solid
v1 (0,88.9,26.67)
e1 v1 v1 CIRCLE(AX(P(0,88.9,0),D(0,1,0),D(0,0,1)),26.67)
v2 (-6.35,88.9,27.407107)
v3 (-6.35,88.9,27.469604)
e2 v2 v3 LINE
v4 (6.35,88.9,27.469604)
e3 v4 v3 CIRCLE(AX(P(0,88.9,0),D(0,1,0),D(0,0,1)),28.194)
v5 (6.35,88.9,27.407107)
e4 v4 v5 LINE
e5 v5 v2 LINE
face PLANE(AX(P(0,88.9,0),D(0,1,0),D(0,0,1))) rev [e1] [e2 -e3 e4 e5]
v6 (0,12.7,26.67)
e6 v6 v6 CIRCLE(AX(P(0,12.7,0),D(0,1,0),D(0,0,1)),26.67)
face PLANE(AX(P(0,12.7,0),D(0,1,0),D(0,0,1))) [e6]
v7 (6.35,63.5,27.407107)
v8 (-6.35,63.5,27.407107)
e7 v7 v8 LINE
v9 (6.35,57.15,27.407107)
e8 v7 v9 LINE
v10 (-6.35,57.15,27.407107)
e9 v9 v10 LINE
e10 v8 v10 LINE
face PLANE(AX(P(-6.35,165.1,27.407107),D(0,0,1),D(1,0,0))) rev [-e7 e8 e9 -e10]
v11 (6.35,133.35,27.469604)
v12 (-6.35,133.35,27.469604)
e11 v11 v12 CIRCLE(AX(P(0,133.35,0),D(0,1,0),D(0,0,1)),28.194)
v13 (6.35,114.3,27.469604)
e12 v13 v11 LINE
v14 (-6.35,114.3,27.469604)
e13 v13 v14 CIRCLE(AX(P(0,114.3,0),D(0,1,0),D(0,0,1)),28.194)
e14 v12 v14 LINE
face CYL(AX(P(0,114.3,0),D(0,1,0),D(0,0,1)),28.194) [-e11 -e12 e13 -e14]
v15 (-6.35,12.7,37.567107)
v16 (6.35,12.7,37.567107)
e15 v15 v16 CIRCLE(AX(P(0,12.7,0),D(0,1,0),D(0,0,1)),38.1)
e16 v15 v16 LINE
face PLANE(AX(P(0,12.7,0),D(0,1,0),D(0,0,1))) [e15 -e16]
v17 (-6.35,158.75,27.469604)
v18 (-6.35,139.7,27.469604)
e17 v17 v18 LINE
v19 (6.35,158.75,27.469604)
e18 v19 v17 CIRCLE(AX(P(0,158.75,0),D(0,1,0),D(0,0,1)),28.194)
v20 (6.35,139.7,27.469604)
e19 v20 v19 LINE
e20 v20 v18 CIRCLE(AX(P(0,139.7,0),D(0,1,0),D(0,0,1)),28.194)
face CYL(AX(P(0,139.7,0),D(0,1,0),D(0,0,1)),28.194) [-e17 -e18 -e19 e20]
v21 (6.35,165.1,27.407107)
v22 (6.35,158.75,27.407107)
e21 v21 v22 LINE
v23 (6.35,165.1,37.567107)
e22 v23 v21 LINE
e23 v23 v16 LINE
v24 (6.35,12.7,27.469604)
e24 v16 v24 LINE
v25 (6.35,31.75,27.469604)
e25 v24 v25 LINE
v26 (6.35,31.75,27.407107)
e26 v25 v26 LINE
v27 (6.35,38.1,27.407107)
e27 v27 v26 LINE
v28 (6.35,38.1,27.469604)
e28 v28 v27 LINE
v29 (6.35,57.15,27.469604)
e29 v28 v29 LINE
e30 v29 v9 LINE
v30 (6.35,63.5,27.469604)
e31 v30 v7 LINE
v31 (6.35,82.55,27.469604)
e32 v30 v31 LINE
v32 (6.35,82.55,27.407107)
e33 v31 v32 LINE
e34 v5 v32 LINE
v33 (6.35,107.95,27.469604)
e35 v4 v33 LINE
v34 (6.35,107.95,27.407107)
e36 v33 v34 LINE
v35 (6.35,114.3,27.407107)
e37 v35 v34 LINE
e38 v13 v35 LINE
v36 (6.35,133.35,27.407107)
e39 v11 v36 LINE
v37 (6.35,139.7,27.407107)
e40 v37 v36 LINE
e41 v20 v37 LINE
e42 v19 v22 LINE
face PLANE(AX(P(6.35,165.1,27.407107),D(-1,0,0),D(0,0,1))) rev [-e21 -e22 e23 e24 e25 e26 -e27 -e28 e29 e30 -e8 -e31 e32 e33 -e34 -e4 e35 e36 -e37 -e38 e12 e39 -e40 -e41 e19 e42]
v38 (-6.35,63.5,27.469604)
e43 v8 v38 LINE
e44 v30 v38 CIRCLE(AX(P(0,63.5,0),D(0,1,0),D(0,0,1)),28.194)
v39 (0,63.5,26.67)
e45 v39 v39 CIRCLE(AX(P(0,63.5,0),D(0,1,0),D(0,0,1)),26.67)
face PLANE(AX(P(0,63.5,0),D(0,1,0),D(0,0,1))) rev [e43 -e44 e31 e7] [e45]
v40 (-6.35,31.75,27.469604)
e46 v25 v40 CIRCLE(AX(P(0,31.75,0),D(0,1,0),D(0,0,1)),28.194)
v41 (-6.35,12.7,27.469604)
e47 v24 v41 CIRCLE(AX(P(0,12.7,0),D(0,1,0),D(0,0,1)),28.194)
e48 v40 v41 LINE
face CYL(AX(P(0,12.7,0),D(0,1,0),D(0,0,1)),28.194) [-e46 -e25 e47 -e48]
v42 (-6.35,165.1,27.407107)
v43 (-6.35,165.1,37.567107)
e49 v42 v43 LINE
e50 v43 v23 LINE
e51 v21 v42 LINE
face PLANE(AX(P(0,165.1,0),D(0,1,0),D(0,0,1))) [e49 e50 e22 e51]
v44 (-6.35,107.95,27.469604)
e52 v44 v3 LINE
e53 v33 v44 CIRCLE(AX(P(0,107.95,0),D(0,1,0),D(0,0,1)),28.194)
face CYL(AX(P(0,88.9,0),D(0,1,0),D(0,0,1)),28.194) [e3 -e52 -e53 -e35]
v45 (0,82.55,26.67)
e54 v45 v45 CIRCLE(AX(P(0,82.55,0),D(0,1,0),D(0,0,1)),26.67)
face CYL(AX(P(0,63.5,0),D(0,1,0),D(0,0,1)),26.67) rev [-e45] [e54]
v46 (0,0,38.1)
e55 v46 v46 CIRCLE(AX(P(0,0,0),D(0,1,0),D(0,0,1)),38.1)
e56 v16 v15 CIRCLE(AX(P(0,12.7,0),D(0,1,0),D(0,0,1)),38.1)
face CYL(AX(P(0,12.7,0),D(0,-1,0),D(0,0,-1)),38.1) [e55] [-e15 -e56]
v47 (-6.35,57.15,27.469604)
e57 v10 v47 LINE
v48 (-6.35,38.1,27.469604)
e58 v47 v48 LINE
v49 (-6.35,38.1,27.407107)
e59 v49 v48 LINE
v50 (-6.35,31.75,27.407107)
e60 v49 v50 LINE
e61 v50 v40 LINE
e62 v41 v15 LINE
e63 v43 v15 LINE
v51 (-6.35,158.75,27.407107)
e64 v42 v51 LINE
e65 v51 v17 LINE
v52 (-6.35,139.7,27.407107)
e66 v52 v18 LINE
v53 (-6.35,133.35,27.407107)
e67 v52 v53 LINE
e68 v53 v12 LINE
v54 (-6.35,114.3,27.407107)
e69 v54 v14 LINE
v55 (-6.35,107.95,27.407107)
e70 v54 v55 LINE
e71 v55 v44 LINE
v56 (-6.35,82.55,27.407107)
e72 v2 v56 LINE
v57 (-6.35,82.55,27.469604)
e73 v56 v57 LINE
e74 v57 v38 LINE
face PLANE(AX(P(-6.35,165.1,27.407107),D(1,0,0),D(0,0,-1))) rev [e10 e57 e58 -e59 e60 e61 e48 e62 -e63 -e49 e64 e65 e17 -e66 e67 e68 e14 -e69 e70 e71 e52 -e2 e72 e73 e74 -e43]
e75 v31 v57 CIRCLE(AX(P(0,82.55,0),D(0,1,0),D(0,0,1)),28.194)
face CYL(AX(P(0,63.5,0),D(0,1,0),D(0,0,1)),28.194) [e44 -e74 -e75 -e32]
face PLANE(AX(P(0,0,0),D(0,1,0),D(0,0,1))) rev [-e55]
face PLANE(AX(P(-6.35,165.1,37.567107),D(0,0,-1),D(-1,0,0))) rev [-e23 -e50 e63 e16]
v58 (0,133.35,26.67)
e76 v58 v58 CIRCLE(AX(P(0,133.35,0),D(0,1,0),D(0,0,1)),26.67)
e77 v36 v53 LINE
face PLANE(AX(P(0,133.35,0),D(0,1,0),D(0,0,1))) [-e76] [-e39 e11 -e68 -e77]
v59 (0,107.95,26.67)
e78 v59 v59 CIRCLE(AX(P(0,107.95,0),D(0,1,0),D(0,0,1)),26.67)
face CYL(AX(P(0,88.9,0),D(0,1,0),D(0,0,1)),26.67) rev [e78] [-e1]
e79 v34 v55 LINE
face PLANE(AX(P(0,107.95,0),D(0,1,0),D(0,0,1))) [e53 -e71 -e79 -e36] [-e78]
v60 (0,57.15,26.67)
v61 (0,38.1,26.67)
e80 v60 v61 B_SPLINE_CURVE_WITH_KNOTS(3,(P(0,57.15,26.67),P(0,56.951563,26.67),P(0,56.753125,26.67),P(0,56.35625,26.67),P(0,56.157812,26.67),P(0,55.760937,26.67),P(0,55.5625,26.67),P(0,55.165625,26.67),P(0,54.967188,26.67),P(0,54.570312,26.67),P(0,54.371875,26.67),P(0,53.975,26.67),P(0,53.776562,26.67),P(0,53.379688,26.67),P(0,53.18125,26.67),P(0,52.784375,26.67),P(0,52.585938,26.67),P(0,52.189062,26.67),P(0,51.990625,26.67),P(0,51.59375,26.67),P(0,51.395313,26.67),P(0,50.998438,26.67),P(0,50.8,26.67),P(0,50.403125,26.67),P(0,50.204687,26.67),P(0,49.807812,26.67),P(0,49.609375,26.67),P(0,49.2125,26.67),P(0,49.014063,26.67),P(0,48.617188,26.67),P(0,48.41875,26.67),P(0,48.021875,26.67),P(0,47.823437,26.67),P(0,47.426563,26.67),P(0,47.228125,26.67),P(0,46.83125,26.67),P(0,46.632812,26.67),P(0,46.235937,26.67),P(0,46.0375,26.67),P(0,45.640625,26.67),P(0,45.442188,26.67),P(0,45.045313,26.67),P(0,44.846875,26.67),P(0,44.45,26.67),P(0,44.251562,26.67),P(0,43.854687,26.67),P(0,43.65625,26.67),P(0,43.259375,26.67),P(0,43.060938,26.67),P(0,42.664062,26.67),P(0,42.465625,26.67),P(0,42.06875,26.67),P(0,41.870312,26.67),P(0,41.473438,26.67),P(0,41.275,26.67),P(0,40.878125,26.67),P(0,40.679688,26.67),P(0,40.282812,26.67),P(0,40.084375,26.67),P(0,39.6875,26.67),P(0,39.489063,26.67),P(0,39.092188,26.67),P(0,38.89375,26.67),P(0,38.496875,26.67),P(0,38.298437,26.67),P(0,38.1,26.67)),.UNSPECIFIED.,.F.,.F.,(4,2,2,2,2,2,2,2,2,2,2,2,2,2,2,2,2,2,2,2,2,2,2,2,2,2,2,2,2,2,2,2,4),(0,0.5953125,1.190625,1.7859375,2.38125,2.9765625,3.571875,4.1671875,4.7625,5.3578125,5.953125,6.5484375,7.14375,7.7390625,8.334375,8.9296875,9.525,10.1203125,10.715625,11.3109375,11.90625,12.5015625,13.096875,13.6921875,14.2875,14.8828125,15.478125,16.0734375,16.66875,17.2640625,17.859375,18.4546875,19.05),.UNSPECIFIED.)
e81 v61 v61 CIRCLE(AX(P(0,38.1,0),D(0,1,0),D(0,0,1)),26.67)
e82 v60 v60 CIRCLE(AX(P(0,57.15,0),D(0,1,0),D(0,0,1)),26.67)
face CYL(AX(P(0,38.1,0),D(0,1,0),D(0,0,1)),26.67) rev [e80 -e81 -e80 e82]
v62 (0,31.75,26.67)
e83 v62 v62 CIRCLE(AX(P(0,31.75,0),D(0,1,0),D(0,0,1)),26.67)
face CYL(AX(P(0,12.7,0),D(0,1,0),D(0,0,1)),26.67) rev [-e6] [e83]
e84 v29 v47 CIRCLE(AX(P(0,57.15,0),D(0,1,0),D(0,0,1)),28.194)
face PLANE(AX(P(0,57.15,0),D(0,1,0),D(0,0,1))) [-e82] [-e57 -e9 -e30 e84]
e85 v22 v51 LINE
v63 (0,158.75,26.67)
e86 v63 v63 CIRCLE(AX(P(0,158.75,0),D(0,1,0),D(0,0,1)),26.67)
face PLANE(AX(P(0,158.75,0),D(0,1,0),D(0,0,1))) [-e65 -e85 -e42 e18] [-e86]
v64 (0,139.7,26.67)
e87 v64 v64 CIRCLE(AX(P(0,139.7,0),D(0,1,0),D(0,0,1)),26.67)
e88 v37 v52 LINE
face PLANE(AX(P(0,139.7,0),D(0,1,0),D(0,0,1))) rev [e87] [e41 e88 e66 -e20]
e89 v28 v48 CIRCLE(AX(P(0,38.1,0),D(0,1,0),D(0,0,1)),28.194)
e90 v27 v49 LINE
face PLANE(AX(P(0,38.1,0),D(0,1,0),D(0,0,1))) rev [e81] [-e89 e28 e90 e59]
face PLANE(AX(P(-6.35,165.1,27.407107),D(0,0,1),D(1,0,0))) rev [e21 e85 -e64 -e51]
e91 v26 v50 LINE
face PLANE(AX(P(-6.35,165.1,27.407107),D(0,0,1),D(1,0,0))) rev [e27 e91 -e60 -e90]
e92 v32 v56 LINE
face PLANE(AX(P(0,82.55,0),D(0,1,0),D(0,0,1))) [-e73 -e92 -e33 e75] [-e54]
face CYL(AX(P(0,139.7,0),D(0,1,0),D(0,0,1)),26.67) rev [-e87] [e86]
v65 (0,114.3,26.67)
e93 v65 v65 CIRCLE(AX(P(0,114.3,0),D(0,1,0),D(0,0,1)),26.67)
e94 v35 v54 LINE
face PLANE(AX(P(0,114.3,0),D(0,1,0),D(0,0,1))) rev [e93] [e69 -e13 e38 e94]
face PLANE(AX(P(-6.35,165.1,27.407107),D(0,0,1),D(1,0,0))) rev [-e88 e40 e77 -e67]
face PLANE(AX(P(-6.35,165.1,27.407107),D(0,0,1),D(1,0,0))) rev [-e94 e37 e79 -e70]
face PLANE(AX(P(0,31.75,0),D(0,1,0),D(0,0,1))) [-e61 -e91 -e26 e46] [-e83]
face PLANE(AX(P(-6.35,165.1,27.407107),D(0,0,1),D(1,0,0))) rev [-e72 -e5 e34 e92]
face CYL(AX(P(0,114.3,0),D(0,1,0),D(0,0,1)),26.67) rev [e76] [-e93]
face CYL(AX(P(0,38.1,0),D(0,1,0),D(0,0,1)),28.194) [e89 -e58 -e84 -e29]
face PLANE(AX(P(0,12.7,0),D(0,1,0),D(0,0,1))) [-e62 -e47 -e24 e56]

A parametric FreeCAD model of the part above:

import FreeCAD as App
import Part
import Sketcher

V = App.Vector
Q = App.Units.Quantity


def add_polygon(sketch, points):
    """Adds a closed chain of lines whose ends are joined by coincident constraints."""
    first, n = sketch.GeometryCount, len(points)
    for a, b in zip(points, points[1:] + points[:1]):
        sketch.addGeometry(Part.LineSegment(App.Vector(*a, 0), App.Vector(*b, 0)), False)
    for i in range(n):
        sketch.addConstraint(Sketcher.Constraint("Coincident", first + i, 2, first + (i + 1) % n, 1))

doc = App.newDocument("Part")
params = doc.addObject("Spreadsheet::Sheet", "Params")
for row, (alias, value) in enumerate([
    ("sketch1_diameter", "3 in"),
    ("pad1_length", "0.5 in"),
    ("sketch2_width", "0.5 in"),
    ("sketch2_height", "0.4 in"),
    ("pad2_length", "6 in"),
    ("sketch3_diameter", "2.1 in"),
    ("sketch3_diameter2", "2.22 in"),
    ("sketch4_height", "0.75 in"),
    ("linearpattern_pitch", "1 in"),
], start=1):
    params.set(f"A{row}", alias)
    params.set(f"B{row}", "=" + value)
    params.setAlias(f"B{row}", alias)

body = doc.addObject("PartDesign::Body", "Body")

# Sketch on XZ plane
sketch1 = body.newObject("Sketcher::SketchObject", "Sketch")
sketch1.AttachmentSupport = (doc.getObject("XZ_Plane"), [""])
sketch1.MapMode = "FlatFace"
sketch1.addGeometry(Part.Circle(V(0, 0, 0), V(0, 0, 1), 38), False)
sketch1.addConstraint([
    Sketcher.Constraint("Coincident", 0, 3, -1, 1),
    Sketcher.Constraint("Diameter", 0, Q("3 in")),
])
sketch1.setExpression("Constraints[1]", "Params.sketch1_diameter")
pad1 = body.newObject("PartDesign::Pad", "Pad")
pad1.Profile = sketch1
pad1.setExpression("Length", "Params.pad1_length")
pad1.Reversed = True

# Sketch on XZ plane
sketch2 = body.newObject("Sketcher::SketchObject", "Sketch001")
sketch2.AttachmentSupport = (doc.getObject("XZ_Plane"), [""])
sketch2.MapMode = "FlatFace"
sketch2.AttachmentOffset = App.Placement(V(0, 0, -0.5 * 25.4), App.Rotation())
add_polygon(sketch2, [(-6, 27), (-6, 38), (6, 38), (6, 27)])  # lines 0-3
sketch2.addConstraint([
    Sketcher.Constraint("Vertical", 0),
    Sketcher.Constraint("Horizontal", 1),
    Sketcher.Constraint("Vertical", 2),
    Sketcher.Constraint("Horizontal", 3),
    Sketcher.Constraint("DistanceX", 1, 1, 1, 2, Q("0.5 in")),
    Sketcher.Constraint("DistanceY", 0, 1, 0, 2, Q("0.4 in")),
    Sketcher.Constraint("DistanceX", 0, 2, -1, 1, Q("0.25 in")),
    Sketcher.Constraint("DistanceY", -1, 1, 0, 2, Q("37.567107 mm")),
])
sketch2.setExpression("Constraints[8]", "Params.sketch2_width")
sketch2.setExpression("Constraints[9]", "Params.sketch2_height")
pad2 = body.newObject("PartDesign::Pad", "Pad001")
pad2.Profile = sketch2
pad2.setExpression("Length", "Params.pad2_length")
pad2.Reversed = True

# Sketch on XZ plane
sketch3 = body.newObject("Sketcher::SketchObject", "Sketch002")
sketch3.AttachmentSupport = (doc.getObject("XZ_Plane"), [""])
sketch3.MapMode = "FlatFace"
sketch3.AttachmentOffset = App.Placement(V(0, 0, -0.5 * 25.4), App.Rotation())
sketch3.addGeometry([
    Part.Circle(V(0, 0, 0), V(0, 0, 1), 28),
    Part.Circle(V(0, 0, 0), V(0, 0, 1), 27),
], False)
sketch3.addConstraint([
    Sketcher.Constraint("Coincident", 0, 3, -1, 1),
    Sketcher.Constraint("Coincident", 1, 3, -1, 1),
    Sketcher.Constraint("Diameter", 1, Q("2.1 in")),
    Sketcher.Constraint("Diameter", 0, Q("2.22 in")),
])
sketch3.setExpression("Constraints[2]", "Params.sketch3_diameter")
sketch3.setExpression("Constraints[3]", "Params.sketch3_diameter2")

# Sketch on XY plane
sketch4 = body.newObject("Sketcher::SketchObject", "Sketch003")
sketch4.AttachmentSupport = (doc.getObject("XY_Plane"), [""])
sketch4.MapMode = "FlatFace"
sketch4.addGeometry(Part.LineSegment(V(0, 13, 0), V(0, 32, 0)), False)
sketch4.addConstraint([
    Sketcher.Constraint("Vertical", 0),
    Sketcher.Constraint("PointOnObject", 0, 1, -2),
    Sketcher.Constraint("DistanceY", 0, 1, 0, 2, Q("0.75 in")),
    Sketcher.Constraint("DistanceY", -1, 1, 0, 1, Q("0.5 in")),
])
sketch4.setExpression("Constraints[2]", "Params.sketch4_height")
doc.recompute()

additivepipe = body.newObject("PartDesign::AdditivePipe", "AdditivePipe")
additivepipe.Profile = sketch3
additivepipe.Spine = (sketch4, ["Edge1"])
doc.recompute()

linearpattern = body.newObject("PartDesign::LinearPattern", "LinearPattern")
linearpattern.Originals = [additivepipe]
linearpattern.Direction = (doc.getObject("Y_Axis"), [""])
linearpattern.Mode = "offset"
linearpattern.setExpression("Offset", "Params.linearpattern_pitch")
linearpattern.Occurrences = 6
body.Tip = linearpattern

doc.recompute()
